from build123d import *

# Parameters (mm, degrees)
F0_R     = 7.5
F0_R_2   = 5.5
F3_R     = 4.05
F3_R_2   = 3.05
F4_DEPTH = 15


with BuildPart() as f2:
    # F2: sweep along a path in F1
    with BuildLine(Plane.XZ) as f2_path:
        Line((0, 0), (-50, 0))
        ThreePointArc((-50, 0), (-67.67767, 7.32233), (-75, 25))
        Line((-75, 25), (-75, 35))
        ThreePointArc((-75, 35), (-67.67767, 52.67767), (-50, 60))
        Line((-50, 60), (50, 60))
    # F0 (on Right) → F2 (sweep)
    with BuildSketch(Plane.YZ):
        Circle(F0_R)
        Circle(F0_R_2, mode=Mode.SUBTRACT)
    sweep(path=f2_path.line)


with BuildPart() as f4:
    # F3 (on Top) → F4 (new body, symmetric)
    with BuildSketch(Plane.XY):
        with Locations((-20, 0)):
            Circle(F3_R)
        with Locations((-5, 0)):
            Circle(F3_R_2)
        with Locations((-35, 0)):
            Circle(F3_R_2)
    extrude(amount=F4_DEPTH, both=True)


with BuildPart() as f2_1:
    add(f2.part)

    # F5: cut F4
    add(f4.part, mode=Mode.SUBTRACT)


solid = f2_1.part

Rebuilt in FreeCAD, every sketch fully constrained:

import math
import FreeCAD as App
import Part
import Sketcher

V = App.Vector

doc = App.newDocument("Part")
params = doc.addObject("Spreadsheet::Sheet", "Params")
for row, (alias, value) in enumerate([
    ("sketch1_diameter", "15 mm"),
    ("sketch1_diameter2", "11 mm"),
    ("sketch2_radius", "24.999998 mm"),
    ("sketch2_width", "50 mm"),
    ("sketch2_width2", "100 mm"),
    ("sketch2_height", "10 mm"),
    ("sketch3_diameter", "8.1 mm"),
    ("sketch3_diameter2", "6.1 mm"),
    ("pad1_length", "30 mm"),
], start=1):
    params.set(f"A{row}", alias)
    params.set(f"B{row}", "=" + value)
    params.setAlias(f"B{row}", alias)

body = doc.addObject("PartDesign::Body", "Body")

sketch1 = body.newObject("Sketcher::SketchObject", "Sketch")
sketch1.AttachmentSupport = (doc.getObject("YZ_Plane"), [""])
sketch1.MapMode = "FlatFace"
sketch1.addGeometry(Part.Circle(V(0, 0, 0), V(0, 0, 1), 7.5), False)
sketch1.addGeometry(Part.Circle(V(0, 0, 0), V(0, 0, 1), 5.5), False)
sketch1.addConstraint(Sketcher.Constraint("Coincident", 0, 3, -1, 1))
sketch1.addConstraint(Sketcher.Constraint("Coincident", 1, 3, -1, 1))
sketch1.addConstraint(Sketcher.Constraint("Diameter", 0, 15.0))
sketch1.addConstraint(Sketcher.Constraint("Diameter", 1, 11.0))
sketch1.setExpression("Constraints[2]", "Params.sketch1_diameter")
sketch1.setExpression("Constraints[3]", "Params.sketch1_diameter2")

sketch2 = body.newObject("Sketcher::SketchObject", "Sketch001")
sketch2.AttachmentSupport = (doc.getObject("XZ_Plane"), [""])
sketch2.MapMode = "FlatFace"
sketch2.addGeometry(Part.LineSegment(V(0, 0, 0), V(-50, 0, 0)), False)
sketch2.addGeometry(Part.ArcOfCircle(Part.Circle(V(-50.000002, 24.999998, 0), V(0, 0, 1), 24.999998), math.radians(179.999996), math.radians(270.000004)), False)
sketch2.addGeometry(Part.LineSegment(V(-75, 25, 0), V(-75, 35, 0)), False)
sketch2.addGeometry(Part.ArcOfCircle(Part.Circle(V(-50.000002, 35.000002, 0), V(0, 0, 1), 24.999998), math.radians(89.999996), math.radians(180.000004)), False)
sketch2.addGeometry(Part.LineSegment(V(-50, 60, 0), V(50, 60, 0)), False)
sketch2.addConstraint(Sketcher.Constraint("Tangent", 0, 2, 1, 2))
sketch2.addConstraint(Sketcher.Constraint("Tangent", 1, 1, 2, 1))
sketch2.addConstraint(Sketcher.Constraint("Tangent", 2, 2, 3, 2))
sketch2.addConstraint(Sketcher.Constraint("Tangent", 3, 1, 4, 1))
sketch2.addConstraint(Sketcher.Constraint("Horizontal", 0))
sketch2.addConstraint(Sketcher.Constraint("Vertical", 2))
sketch2.addConstraint(Sketcher.Constraint("Horizontal", 4))
sketch2.addConstraint(Sketcher.Constraint("Coincident", 0, 1, -1, 1))
sketch2.addConstraint(Sketcher.Constraint("Equal", 1, 3))
sketch2.addConstraint(Sketcher.Constraint("Radius", 1, 24.999998))
sketch2.addConstraint(Sketcher.Constraint("DistanceX", 0, 2, 0, 1, 50.0))
sketch2.addConstraint(Sketcher.Constraint("DistanceX", 4, 1, 4, 2, 100.0))
sketch2.addConstraint(Sketcher.Constraint("DistanceY", 2, 1, 2, 2, 10.0))
sketch2.setExpression("Constraints[9]", "Params.sketch2_radius")
sketch2.setExpression("Constraints[10]", "Params.sketch2_width")
sketch2.setExpression("Constraints[11]", "Params.sketch2_width2")
sketch2.setExpression("Constraints[12]", "Params.sketch2_height")
doc.recompute()

additivepipe = body.newObject("PartDesign::AdditivePipe", "AdditivePipe")
additivepipe.Profile = sketch1
additivepipe.Spine = (sketch2, ["Edge1", "Edge2", "Edge3", "Edge4", "Edge5"])
body2 = doc.addObject("PartDesign::Body", "Body001")
body2.AllowCompound = True

sketch3 = body2.newObject("Sketcher::SketchObject", "Sketch002")
sketch3.AttachmentSupport = (doc.getObject("XY_Plane001"), [""])
sketch3.MapMode = "FlatFace"
sketch3.addGeometry(Part.Circle(V(-20, 0, 0), V(0, 0, 1), 4.05), False)
sketch3.addGeometry(Part.Circle(V(-5, 0, 0), V(0, 0, 1), 3.05), False)
sketch3.addGeometry(Part.Circle(V(-35, 0, 0), V(0, 0, 1), 3.05), False)
sketch3.addConstraint(Sketcher.Constraint("Equal", 1, 2))
sketch3.addConstraint(Sketcher.Constraint("PointOnObject", 0, 3, -1))
sketch3.addConstraint(Sketcher.Constraint("PointOnObject", 1, 3, -1))
sketch3.addConstraint(Sketcher.Constraint("PointOnObject", 2, 3, -1))
sketch3.addConstraint(Sketcher.Constraint("Diameter", 0, 8.1))
sketch3.addConstraint(Sketcher.Constraint("Diameter", 1, 6.1))
sketch3.addConstraint(Sketcher.Constraint("DistanceX", 0, 3, -1, 1, 20.0))
sketch3.addConstraint(Sketcher.Constraint("DistanceX", 1, 3, -1, 1, 5.0))
sketch3.addConstraint(Sketcher.Constraint("DistanceX", 2, 3, -1, 1, 35.0))
sketch3.setExpression("Constraints[4]", "Params.sketch3_diameter")
sketch3.setExpression("Constraints[5]", "Params.sketch3_diameter2")
pad1 = body2.newObject("PartDesign::Pad", "Pad")
pad1.Profile = sketch3
pad1.setExpression("Length", "Params.pad1_length")
pad1.Midplane = True
doc.recompute()

boolean = body.newObject("PartDesign::Boolean", "Boolean")
boolean.Type = "Cut"
boolean.addObjects([body2])

doc.recompute()
